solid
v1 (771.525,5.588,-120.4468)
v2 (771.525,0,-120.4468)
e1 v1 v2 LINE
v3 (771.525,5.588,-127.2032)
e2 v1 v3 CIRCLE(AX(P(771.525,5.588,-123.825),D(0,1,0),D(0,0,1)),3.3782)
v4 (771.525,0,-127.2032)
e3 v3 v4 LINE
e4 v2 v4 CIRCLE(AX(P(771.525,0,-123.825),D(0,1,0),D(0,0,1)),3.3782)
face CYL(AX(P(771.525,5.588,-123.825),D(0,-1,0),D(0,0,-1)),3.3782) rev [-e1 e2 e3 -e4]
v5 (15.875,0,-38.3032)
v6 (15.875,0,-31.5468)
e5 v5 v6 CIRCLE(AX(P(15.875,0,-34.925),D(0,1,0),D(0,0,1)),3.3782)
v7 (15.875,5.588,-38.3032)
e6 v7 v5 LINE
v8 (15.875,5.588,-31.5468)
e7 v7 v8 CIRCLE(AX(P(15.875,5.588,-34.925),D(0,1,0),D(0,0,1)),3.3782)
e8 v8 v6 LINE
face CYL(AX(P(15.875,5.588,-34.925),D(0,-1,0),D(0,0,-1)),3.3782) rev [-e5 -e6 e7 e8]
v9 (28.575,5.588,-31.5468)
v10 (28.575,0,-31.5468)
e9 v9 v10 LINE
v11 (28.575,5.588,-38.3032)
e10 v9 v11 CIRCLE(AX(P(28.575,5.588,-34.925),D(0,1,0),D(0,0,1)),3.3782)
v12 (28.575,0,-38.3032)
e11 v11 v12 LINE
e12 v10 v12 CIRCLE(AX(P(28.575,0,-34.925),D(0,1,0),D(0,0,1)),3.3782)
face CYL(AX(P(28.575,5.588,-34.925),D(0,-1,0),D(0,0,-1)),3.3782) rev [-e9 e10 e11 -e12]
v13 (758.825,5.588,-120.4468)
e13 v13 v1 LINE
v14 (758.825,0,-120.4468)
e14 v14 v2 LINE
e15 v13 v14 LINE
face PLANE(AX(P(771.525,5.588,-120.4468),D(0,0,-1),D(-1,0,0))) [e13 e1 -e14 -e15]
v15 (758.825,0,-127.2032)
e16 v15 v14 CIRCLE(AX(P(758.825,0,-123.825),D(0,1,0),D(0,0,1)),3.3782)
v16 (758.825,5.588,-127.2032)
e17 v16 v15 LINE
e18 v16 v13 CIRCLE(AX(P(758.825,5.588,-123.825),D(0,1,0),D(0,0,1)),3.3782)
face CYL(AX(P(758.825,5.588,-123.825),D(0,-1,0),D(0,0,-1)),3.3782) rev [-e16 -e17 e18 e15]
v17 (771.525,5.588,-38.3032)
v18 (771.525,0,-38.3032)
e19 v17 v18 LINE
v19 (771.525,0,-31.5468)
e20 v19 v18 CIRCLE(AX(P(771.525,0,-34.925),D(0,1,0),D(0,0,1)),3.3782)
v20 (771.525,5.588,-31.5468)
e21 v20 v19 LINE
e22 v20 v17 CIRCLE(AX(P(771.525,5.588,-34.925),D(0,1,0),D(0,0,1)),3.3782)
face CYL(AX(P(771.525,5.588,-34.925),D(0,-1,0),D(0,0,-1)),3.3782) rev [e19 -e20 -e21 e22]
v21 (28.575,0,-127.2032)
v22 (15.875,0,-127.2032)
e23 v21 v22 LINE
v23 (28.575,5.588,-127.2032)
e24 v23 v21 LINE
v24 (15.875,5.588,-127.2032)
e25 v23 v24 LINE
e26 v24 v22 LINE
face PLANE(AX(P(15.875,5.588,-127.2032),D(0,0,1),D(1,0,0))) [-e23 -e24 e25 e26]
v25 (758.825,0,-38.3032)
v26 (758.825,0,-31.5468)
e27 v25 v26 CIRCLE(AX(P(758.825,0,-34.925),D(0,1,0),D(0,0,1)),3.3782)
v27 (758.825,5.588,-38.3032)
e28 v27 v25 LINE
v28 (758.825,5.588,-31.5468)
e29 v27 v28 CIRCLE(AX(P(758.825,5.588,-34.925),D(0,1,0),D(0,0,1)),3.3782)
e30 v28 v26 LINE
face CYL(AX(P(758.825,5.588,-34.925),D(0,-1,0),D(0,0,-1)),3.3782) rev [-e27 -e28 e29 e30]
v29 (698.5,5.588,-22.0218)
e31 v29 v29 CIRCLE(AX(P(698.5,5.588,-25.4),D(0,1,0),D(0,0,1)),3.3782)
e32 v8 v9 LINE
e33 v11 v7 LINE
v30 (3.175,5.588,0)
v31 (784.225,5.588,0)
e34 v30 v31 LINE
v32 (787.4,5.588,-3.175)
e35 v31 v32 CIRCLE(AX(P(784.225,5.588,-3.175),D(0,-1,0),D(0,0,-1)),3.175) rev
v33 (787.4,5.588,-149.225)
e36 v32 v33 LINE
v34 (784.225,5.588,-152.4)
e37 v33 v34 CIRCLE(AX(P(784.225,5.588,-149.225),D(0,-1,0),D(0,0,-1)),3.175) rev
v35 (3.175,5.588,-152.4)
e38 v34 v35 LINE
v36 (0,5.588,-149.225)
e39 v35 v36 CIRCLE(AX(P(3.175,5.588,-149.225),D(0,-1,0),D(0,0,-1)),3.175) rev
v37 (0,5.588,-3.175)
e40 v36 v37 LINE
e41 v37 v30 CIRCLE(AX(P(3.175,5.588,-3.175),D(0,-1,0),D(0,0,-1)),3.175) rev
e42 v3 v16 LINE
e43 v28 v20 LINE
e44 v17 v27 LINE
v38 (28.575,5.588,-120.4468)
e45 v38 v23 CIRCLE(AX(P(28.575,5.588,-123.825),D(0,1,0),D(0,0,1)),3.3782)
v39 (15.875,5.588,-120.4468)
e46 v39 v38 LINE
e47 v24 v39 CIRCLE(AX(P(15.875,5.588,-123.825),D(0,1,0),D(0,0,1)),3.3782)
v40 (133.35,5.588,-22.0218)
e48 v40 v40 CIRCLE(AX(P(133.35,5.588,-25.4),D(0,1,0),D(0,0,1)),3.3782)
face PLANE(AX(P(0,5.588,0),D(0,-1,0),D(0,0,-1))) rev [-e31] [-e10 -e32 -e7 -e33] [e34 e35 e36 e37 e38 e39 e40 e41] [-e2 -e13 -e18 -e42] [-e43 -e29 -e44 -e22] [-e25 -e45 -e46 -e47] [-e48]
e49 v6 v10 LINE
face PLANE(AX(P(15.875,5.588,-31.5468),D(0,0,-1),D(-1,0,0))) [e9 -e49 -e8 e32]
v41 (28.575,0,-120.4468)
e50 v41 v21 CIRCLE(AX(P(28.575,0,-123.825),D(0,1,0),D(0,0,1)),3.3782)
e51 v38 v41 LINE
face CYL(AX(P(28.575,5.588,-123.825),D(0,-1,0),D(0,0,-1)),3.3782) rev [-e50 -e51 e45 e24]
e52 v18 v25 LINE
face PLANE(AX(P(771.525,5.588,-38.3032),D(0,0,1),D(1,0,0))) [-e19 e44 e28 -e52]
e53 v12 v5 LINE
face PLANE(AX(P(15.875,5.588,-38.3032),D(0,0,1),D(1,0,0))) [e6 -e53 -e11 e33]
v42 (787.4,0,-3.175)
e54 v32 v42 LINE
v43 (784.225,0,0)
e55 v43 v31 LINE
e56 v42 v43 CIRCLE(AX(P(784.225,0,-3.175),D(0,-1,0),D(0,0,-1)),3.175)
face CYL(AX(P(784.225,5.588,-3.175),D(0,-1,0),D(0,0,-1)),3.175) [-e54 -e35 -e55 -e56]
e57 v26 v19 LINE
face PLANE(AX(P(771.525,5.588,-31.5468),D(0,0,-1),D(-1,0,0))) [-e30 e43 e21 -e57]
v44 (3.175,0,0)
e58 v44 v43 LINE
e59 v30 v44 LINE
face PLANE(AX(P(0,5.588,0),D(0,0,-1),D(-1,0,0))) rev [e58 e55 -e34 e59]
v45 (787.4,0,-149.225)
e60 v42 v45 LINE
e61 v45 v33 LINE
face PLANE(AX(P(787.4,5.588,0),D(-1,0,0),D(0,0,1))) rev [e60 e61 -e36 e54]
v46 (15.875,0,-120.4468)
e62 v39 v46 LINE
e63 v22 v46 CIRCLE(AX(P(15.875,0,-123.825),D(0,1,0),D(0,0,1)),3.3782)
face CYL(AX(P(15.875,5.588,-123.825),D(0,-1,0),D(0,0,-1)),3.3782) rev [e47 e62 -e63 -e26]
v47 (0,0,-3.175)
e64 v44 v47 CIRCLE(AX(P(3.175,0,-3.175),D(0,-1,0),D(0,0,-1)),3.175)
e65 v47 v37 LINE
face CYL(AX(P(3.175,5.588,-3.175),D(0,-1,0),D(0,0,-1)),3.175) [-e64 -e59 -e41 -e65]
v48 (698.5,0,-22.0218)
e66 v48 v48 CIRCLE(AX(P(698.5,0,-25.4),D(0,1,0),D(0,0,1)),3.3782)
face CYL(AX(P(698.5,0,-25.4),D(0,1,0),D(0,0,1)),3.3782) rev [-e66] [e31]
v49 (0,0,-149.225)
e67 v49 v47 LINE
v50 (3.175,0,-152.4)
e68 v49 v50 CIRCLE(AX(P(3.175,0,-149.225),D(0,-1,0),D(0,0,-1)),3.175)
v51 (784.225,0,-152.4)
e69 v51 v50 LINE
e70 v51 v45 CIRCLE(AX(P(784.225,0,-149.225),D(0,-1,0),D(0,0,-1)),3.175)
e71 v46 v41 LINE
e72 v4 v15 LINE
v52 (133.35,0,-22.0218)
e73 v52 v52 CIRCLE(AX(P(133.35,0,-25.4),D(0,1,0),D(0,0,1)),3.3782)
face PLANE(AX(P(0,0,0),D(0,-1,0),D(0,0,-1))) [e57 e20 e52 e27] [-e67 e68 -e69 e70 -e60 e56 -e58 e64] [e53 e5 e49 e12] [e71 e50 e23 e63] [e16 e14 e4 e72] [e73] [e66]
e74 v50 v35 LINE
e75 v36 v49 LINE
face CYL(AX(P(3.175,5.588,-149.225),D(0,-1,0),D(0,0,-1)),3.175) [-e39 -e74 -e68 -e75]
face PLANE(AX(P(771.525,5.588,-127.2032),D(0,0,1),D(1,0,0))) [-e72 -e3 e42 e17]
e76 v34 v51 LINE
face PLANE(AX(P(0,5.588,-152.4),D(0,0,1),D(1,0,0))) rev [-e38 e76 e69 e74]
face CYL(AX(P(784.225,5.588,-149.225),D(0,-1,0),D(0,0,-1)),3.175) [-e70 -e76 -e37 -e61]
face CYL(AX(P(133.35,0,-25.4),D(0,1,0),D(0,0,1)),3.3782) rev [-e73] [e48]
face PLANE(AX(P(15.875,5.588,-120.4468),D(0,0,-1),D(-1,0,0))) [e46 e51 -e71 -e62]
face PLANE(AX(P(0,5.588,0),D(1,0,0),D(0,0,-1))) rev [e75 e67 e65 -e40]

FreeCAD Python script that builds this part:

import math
import FreeCAD as App
import Part
import Sketcher

V = App.Vector
Q = App.Units.Quantity


def edges_at(feature, points):
    """Names of the edges that pass closest to the given points."""
    edges = feature.Shape.Edges
    near = lambda p: min(range(len(edges)), key=lambda i: edges[i].distToShape(Part.Vertex(*p))[0])
    return sorted({f"Edge{near(p) + 1}" for p in points})


def add_polygon(sketch, points):
    """Adds a closed chain of lines whose ends are joined by coincident constraints."""
    first, n = sketch.GeometryCount, len(points)
    for a, b in zip(points, points[1:] + points[:1]):
        sketch.addGeometry(Part.LineSegment(App.Vector(*a, 0), App.Vector(*b, 0)), False)
    for i in range(n):
        sketch.addConstraint(Sketcher.Constraint("Coincident", first + i, 2, first + (i + 1) % n, 1))

doc = App.newDocument("Part")
body = doc.addObject("PartDesign::Body", "Body")

sketch1 = body.newObject("Sketcher::SketchObject", "Sketch")
sketch1.AttachmentSupport = (doc.getObject("XZ_Plane"), [""])
sketch1.MapMode = "FlatFace"
add_polygon(sketch1, [(0, -152.4), (0, 0), (787.4, 0), (787.4, -152.4)])
sketch1.addGeometry(Part.ArcOfCircle(Part.Circle(V(15.875, -34.925, 0), V(0, 0, 1), 3.3782), math.radians(90), math.radians(270)), False)
sketch1.addGeometry(Part.LineSegment(V(15.875, -38.3032, 0), V(28.575, -38.3032, 0)), False)
sketch1.addGeometry(Part.ArcOfCircle(Part.Circle(V(28.575, -34.925, 0), V(0, 0, 1), 3.3782), math.radians(-90), math.radians(90)), False)
sketch1.addGeometry(Part.LineSegment(V(28.575, -31.5468, 0), V(15.875, -31.5468, 0)), False)
sketch1.addGeometry(Part.ArcOfCircle(Part.Circle(V(771.525, -34.925, 0), V(0, 0, 1), 3.3782), math.radians(-90), math.radians(90)), False)
sketch1.addGeometry(Part.LineSegment(V(771.525, -31.5468, 0), V(758.825, -31.5468, 0)), False)
sketch1.addGeometry(Part.ArcOfCircle(Part.Circle(V(758.825, -34.925, 0), V(0, 0, 1), 3.3782), math.radians(90), math.radians(270)), False)
sketch1.addGeometry(Part.LineSegment(V(758.825, -38.3032, 0), V(771.525, -38.3032, 0)), False)
sketch1.addGeometry(Part.ArcOfCircle(Part.Circle(V(15.875, -123.825, 0), V(0, 0, 1), 3.3782), math.radians(90), math.radians(270)), False)
sketch1.addGeometry(Part.LineSegment(V(15.875, -127.2032, 0), V(28.575, -127.2032, 0)), False)
sketch1.addGeometry(Part.ArcOfCircle(Part.Circle(V(28.575, -123.825, 0), V(0, 0, 1), 3.3782), math.radians(-90), math.radians(90)), False)
sketch1.addGeometry(Part.LineSegment(V(28.575, -120.4468, 0), V(15.875, -120.4468, 0)), False)
sketch1.addGeometry(Part.ArcOfCircle(Part.Circle(V(771.525, -123.825, 0), V(0, 0, 1), 3.3782), math.radians(-90), math.radians(90)), False)
sketch1.addGeometry(Part.LineSegment(V(771.525, -120.4468, 0), V(758.825, -120.4468, 0)), False)
sketch1.addGeometry(Part.ArcOfCircle(Part.Circle(V(758.825, -123.825, 0), V(0, 0, 1), 3.3782), math.radians(90), math.radians(270)), False)
sketch1.addGeometry(Part.LineSegment(V(758.825, -127.2032, 0), V(771.525, -127.2032, 0)), False)
sketch1.addConstraint([
    Sketcher.Constraint("Tangent", 4, 2, 5, 1),
    Sketcher.Constraint("Tangent", 5, 2, 6, 1),
    Sketcher.Constraint("Tangent", 6, 2, 7, 1),
    Sketcher.Constraint("Tangent", 7, 2, 4, 1),
    Sketcher.Constraint("Tangent", 8, 2, 9, 1),
    Sketcher.Constraint("Tangent", 9, 2, 10, 1),
    Sketcher.Constraint("Tangent", 10, 2, 11, 1),
    Sketcher.Constraint("Tangent", 11, 2, 8, 1),
    Sketcher.Constraint("Tangent", 12, 2, 13, 1),
    Sketcher.Constraint("Tangent", 13, 2, 14, 1),
    Sketcher.Constraint("Tangent", 14, 2, 15, 1),
    Sketcher.Constraint("Tangent", 15, 2, 12, 1),
    Sketcher.Constraint("Tangent", 16, 2, 17, 1),
    Sketcher.Constraint("Tangent", 17, 2, 18, 1),
    Sketcher.Constraint("Tangent", 18, 2, 19, 1),
    Sketcher.Constraint("Tangent", 19, 2, 16, 1),
    Sketcher.Constraint("Vertical", 0),
    Sketcher.Constraint("Horizontal", 1),
    Sketcher.Constraint("Vertical", 2),
    Sketcher.Constraint("Horizontal", 3),
    Sketcher.Constraint("Horizontal", 5),
    Sketcher.Constraint("Horizontal", 7),
    Sketcher.Constraint("Horizontal", 9),
    Sketcher.Constraint("Horizontal", 11),
    Sketcher.Constraint("Horizontal", 13),
    Sketcher.Constraint("Horizontal", 15),
    Sketcher.Constraint("Horizontal", 17),
    Sketcher.Constraint("Horizontal", 19),
    Sketcher.Constraint("Coincident", 0, 2, -1, 1),
    Sketcher.Constraint("Equal", 6, 8),
    Sketcher.Constraint("Equal", 10, 12),
    Sketcher.Constraint("Equal", 14, 16),
    Sketcher.Constraint("Horizontal", 6, 3, 8, 3),
    Sketcher.Constraint("Horizontal", 14, 3, 16, 3),
    Sketcher.Constraint("Vertical", 4, 3, 12, 3),
    Sketcher.Constraint("Vertical", 6, 3, 14, 3),
    Sketcher.Constraint("Vertical", 8, 3, 16, 3),
    Sketcher.Constraint("Vertical", 10, 3, 18, 3),
    Sketcher.Constraint("Equal", 7, 9),
    Sketcher.Constraint("DistanceX", 1, 1, 1, 2, Q("31 in")),
    Sketcher.Constraint("DistanceY", 0, 1, 0, 2, Q("6 in")),
    Sketcher.Constraint("DistanceX", 5, 1, 5, 2, Q("0.5 in")),
    Sketcher.Constraint("Radius", 4, Q("0.133 in")),
    Sketcher.Constraint("DistanceY", 12, 3, 4, 3, Q("3.5 in")),
    Sketcher.Constraint("DistanceX", 6, 3, 8, 3, Q("29.25 in")),
    Sketcher.Constraint("DistanceX", -1, 1, 4, 3, Q("0.625 in")),
    Sketcher.Constraint("DistanceY", 4, 3, -1, 1, Q("1.375 in")),
])
pad1 = body.newObject("PartDesign::Pad", "Pad")
pad1.Profile = sketch1
pad1.Length = Q("0.22 in")
pad1.Reversed = True
doc.recompute()

fillet = body.newObject("PartDesign::Fillet", "Fillet")
fillet.Base = (pad1, edges_at(pad1, [
    (0, 2.794, -152.4),
    (787.4, 2.794, -152.4),
    (787.4, 2.794, 0),
    (0, 2.794, 0),
]))
fillet.Radius = Q("0.125 in")

sketch2 = body.newObject("Sketcher::SketchObject", "Sketch001")
sketch2.AttachmentSupport = (doc.getObject("XZ_Plane"), [""])
sketch2.MapMode = "FlatFace"
sketch2.AttachmentOffset = App.Placement(V(0, 0, -0.22 * 25.4), App.Rotation())
sketch2.addGeometry([
    Part.Circle(V(133.35, -25.4, 0), V(0, 0, 1), 3.3782),
    Part.Circle(V(698.5, -25.4, 0), V(0, 0, 1), 3.3782),
], False)
sketch2.addConstraint([
    Sketcher.Constraint("Equal", 0, 1),
    Sketcher.Constraint("Horizontal", 0, 3, 1, 3),
    Sketcher.Constraint("Diameter", 0, Q("0.266 in")),
    Sketcher.Constraint("DistanceY", 0, 3, -1, 1, Q("1 in")),
    Sketcher.Constraint("DistanceX", -1, 1, 1, 3, Q("27.5 in")),
    Sketcher.Constraint("DistanceX", -1, 1, 0, 3, Q("5.25 in")),
])
pocket1 = body.newObject("PartDesign::Pocket", "Pocket")
pocket1.Profile = sketch2
pocket1.Type = "ThroughAll"
pocket1.Reversed = True

doc.recompute()
